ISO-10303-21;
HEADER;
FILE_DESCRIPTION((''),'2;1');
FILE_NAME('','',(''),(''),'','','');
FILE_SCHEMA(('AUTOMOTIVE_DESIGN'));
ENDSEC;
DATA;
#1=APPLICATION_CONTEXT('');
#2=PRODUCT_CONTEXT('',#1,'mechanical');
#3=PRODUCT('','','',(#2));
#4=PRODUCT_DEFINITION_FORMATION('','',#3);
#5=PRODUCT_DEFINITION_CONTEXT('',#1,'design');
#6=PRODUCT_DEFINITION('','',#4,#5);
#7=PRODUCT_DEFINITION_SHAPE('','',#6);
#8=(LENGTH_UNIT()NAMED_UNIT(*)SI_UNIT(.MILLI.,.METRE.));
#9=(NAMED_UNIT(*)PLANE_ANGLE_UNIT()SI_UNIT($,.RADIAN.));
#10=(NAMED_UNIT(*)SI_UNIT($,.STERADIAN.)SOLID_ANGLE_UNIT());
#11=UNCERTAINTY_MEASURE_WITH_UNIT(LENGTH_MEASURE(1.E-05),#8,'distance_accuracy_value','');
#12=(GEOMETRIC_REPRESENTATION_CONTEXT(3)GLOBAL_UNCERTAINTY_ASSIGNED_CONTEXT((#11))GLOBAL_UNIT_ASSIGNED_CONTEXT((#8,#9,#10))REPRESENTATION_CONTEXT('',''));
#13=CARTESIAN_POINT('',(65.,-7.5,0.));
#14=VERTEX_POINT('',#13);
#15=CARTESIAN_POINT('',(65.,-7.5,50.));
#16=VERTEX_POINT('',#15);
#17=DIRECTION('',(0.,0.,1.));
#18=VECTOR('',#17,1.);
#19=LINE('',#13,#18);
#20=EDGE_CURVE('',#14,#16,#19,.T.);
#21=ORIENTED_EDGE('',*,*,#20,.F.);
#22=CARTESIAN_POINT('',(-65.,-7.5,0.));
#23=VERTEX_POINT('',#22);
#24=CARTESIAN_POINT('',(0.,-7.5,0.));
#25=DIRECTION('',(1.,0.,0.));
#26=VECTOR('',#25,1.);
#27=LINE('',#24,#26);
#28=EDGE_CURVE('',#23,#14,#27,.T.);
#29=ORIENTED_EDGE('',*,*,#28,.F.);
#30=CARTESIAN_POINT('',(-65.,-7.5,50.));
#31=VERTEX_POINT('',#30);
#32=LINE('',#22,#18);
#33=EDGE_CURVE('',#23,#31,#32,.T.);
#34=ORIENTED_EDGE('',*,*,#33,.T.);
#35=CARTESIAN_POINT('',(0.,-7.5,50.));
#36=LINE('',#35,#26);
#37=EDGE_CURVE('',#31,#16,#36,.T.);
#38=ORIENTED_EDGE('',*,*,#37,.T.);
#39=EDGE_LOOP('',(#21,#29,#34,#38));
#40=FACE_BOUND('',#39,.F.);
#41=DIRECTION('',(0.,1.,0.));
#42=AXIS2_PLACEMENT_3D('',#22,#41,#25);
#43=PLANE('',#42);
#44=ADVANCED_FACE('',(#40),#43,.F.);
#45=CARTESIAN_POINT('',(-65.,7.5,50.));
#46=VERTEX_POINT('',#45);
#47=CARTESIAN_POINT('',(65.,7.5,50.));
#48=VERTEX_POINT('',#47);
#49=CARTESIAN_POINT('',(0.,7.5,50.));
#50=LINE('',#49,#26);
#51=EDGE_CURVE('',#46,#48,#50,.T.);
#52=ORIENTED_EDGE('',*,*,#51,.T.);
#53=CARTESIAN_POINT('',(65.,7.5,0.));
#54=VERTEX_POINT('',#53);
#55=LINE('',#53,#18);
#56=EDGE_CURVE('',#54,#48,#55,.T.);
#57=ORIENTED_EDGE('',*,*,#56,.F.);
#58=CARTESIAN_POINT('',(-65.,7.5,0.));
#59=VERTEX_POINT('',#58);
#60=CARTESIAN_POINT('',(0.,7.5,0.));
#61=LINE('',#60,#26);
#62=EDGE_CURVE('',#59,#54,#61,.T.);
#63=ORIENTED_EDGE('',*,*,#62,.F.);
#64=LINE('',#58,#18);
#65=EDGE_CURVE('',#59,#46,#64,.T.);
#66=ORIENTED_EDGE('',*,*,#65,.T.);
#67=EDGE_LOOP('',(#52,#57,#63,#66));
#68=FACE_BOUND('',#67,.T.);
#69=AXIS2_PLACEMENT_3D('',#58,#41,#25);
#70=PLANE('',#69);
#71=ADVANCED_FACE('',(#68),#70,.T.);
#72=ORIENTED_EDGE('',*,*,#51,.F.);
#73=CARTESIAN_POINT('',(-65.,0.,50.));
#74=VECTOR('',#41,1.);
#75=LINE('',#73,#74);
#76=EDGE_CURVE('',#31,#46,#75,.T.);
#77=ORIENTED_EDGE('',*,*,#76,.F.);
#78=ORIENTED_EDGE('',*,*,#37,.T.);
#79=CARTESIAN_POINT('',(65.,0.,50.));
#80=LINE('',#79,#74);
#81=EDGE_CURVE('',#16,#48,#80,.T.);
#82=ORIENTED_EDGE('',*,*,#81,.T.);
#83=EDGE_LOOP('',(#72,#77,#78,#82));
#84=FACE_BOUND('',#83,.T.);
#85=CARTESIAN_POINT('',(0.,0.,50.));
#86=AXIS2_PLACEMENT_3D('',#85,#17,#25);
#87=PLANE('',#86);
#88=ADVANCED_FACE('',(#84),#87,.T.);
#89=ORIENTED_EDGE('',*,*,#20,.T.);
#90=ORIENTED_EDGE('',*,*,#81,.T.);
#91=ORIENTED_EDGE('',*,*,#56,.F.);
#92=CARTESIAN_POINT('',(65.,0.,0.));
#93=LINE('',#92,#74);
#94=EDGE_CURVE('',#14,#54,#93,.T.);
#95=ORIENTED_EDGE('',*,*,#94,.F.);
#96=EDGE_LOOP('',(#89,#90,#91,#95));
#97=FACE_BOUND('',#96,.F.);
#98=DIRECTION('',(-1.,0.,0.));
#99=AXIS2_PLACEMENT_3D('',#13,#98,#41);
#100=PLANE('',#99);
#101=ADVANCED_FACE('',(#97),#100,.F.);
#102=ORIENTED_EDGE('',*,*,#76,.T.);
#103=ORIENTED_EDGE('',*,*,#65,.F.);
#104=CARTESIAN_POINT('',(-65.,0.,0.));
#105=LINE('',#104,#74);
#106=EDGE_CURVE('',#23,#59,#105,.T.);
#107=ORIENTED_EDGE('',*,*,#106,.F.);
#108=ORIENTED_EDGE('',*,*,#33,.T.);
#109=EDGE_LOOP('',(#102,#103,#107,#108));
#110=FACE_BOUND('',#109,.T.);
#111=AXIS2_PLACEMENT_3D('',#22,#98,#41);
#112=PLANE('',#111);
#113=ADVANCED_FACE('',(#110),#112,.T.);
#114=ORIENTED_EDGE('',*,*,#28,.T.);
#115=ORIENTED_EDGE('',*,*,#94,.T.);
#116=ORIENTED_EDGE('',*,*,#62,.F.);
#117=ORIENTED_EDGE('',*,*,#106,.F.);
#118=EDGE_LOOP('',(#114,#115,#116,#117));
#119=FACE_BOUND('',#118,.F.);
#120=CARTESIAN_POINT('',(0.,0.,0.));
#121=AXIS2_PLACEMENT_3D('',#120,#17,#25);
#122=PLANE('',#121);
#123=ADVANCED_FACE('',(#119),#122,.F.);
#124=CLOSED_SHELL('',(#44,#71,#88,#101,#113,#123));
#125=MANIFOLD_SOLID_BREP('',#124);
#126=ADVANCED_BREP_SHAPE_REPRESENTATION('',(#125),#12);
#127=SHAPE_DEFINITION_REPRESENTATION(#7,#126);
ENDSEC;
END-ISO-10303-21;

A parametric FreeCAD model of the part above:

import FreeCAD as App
import Part
import Sketcher


def add_polygon(sketch, points):
    """Adds a closed chain of lines whose ends are joined by coincident constraints."""
    first, n = sketch.GeometryCount, len(points)
    for a, b in zip(points, points[1:] + points[:1]):
        sketch.addGeometry(Part.LineSegment(App.Vector(*a, 0), App.Vector(*b, 0)), False)
    for i in range(n):
        sketch.addConstraint(Sketcher.Constraint("Coincident", first + i, 2, first + (i + 1) % n, 1))

doc = App.newDocument("Part")
body = doc.addObject("PartDesign::Body", "Body")

# Sketch on XY plane
sketch1 = body.newObject("Sketcher::SketchObject", "Sketch")
sketch1.AttachmentSupport = (doc.getObject("XY_Plane"), [""])
sketch1.MapMode = "FlatFace"
add_polygon(sketch1, [(-65, 7.5), (-65, -7.5), (65, -7.5), (65, 7.5)])  # lines 0-3
sketch1.addConstraint(Sketcher.Constraint("Vertical", 0))
sketch1.addConstraint(Sketcher.Constraint("Horizontal", 1))
sketch1.addConstraint(Sketcher.Constraint("Vertical", 2))
sketch1.addConstraint(Sketcher.Constraint("Horizontal", 3))
sketch1.addConstraint(Sketcher.Constraint("Symmetric", 0, 2, 2, 2, -1, 1))
sketch1.addConstraint(Sketcher.Constraint("DistanceX", 1, 1, 1, 2, 130.0))
sketch1.addConstraint(Sketcher.Constraint("DistanceY", 0, 2, 0, 1, 15.0))
pad1 = body.newObject("PartDesign::Pad", "Pad")
pad1.Profile = sketch1
pad1.Length = 50

doc.recompute()
